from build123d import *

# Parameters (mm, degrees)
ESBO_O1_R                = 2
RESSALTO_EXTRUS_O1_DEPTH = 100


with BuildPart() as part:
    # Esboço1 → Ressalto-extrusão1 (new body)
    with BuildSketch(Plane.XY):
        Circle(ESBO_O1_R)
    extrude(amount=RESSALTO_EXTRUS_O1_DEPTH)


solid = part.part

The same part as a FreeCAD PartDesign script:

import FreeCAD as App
import Part
import Sketcher
Q = App.Units.Quantity

doc = App.newDocument("Part")
params = doc.addObject("Spreadsheet::Sheet", "Params")
for row, (alias, value) in enumerate([
    ("sketch1_diameter", "4 mm"),
    ("pad1_length", "100 mm"),
], start=1):
    params.set(f"A{row}", alias)
    params.set(f"B{row}", "=" + value)
    params.setAlias(f"B{row}", alias)

body = doc.addObject("PartDesign::Body", "Body")

sketch1 = doc.addObject("Sketcher::SketchObject", "Sketch")
body.addObject(sketch1)
sketch1.AttachmentSupport = (doc.XY_Plane, [""])
sketch1.MapMode = "FlatFace"
sketch1.addGeometry(Part.Circle(App.Vector(0, 0, 0), App.Vector(0, 0, 1), 2), False)
sketch1.addConstraint([
    Sketcher.Constraint("Coincident", 0, 3, -1, 1),
    Sketcher.Constraint("Diameter", 0, Q("4 mm")),
])
sketch1.setExpression("Constraints[1]", "Params.sketch1_diameter")
pad1 = doc.addObject("PartDesign::Pad", "Pad")
body.addObject(pad1)
pad1.Profile = sketch1
pad1.setExpression("Length", "Params.pad1_length")

doc.recompute()
